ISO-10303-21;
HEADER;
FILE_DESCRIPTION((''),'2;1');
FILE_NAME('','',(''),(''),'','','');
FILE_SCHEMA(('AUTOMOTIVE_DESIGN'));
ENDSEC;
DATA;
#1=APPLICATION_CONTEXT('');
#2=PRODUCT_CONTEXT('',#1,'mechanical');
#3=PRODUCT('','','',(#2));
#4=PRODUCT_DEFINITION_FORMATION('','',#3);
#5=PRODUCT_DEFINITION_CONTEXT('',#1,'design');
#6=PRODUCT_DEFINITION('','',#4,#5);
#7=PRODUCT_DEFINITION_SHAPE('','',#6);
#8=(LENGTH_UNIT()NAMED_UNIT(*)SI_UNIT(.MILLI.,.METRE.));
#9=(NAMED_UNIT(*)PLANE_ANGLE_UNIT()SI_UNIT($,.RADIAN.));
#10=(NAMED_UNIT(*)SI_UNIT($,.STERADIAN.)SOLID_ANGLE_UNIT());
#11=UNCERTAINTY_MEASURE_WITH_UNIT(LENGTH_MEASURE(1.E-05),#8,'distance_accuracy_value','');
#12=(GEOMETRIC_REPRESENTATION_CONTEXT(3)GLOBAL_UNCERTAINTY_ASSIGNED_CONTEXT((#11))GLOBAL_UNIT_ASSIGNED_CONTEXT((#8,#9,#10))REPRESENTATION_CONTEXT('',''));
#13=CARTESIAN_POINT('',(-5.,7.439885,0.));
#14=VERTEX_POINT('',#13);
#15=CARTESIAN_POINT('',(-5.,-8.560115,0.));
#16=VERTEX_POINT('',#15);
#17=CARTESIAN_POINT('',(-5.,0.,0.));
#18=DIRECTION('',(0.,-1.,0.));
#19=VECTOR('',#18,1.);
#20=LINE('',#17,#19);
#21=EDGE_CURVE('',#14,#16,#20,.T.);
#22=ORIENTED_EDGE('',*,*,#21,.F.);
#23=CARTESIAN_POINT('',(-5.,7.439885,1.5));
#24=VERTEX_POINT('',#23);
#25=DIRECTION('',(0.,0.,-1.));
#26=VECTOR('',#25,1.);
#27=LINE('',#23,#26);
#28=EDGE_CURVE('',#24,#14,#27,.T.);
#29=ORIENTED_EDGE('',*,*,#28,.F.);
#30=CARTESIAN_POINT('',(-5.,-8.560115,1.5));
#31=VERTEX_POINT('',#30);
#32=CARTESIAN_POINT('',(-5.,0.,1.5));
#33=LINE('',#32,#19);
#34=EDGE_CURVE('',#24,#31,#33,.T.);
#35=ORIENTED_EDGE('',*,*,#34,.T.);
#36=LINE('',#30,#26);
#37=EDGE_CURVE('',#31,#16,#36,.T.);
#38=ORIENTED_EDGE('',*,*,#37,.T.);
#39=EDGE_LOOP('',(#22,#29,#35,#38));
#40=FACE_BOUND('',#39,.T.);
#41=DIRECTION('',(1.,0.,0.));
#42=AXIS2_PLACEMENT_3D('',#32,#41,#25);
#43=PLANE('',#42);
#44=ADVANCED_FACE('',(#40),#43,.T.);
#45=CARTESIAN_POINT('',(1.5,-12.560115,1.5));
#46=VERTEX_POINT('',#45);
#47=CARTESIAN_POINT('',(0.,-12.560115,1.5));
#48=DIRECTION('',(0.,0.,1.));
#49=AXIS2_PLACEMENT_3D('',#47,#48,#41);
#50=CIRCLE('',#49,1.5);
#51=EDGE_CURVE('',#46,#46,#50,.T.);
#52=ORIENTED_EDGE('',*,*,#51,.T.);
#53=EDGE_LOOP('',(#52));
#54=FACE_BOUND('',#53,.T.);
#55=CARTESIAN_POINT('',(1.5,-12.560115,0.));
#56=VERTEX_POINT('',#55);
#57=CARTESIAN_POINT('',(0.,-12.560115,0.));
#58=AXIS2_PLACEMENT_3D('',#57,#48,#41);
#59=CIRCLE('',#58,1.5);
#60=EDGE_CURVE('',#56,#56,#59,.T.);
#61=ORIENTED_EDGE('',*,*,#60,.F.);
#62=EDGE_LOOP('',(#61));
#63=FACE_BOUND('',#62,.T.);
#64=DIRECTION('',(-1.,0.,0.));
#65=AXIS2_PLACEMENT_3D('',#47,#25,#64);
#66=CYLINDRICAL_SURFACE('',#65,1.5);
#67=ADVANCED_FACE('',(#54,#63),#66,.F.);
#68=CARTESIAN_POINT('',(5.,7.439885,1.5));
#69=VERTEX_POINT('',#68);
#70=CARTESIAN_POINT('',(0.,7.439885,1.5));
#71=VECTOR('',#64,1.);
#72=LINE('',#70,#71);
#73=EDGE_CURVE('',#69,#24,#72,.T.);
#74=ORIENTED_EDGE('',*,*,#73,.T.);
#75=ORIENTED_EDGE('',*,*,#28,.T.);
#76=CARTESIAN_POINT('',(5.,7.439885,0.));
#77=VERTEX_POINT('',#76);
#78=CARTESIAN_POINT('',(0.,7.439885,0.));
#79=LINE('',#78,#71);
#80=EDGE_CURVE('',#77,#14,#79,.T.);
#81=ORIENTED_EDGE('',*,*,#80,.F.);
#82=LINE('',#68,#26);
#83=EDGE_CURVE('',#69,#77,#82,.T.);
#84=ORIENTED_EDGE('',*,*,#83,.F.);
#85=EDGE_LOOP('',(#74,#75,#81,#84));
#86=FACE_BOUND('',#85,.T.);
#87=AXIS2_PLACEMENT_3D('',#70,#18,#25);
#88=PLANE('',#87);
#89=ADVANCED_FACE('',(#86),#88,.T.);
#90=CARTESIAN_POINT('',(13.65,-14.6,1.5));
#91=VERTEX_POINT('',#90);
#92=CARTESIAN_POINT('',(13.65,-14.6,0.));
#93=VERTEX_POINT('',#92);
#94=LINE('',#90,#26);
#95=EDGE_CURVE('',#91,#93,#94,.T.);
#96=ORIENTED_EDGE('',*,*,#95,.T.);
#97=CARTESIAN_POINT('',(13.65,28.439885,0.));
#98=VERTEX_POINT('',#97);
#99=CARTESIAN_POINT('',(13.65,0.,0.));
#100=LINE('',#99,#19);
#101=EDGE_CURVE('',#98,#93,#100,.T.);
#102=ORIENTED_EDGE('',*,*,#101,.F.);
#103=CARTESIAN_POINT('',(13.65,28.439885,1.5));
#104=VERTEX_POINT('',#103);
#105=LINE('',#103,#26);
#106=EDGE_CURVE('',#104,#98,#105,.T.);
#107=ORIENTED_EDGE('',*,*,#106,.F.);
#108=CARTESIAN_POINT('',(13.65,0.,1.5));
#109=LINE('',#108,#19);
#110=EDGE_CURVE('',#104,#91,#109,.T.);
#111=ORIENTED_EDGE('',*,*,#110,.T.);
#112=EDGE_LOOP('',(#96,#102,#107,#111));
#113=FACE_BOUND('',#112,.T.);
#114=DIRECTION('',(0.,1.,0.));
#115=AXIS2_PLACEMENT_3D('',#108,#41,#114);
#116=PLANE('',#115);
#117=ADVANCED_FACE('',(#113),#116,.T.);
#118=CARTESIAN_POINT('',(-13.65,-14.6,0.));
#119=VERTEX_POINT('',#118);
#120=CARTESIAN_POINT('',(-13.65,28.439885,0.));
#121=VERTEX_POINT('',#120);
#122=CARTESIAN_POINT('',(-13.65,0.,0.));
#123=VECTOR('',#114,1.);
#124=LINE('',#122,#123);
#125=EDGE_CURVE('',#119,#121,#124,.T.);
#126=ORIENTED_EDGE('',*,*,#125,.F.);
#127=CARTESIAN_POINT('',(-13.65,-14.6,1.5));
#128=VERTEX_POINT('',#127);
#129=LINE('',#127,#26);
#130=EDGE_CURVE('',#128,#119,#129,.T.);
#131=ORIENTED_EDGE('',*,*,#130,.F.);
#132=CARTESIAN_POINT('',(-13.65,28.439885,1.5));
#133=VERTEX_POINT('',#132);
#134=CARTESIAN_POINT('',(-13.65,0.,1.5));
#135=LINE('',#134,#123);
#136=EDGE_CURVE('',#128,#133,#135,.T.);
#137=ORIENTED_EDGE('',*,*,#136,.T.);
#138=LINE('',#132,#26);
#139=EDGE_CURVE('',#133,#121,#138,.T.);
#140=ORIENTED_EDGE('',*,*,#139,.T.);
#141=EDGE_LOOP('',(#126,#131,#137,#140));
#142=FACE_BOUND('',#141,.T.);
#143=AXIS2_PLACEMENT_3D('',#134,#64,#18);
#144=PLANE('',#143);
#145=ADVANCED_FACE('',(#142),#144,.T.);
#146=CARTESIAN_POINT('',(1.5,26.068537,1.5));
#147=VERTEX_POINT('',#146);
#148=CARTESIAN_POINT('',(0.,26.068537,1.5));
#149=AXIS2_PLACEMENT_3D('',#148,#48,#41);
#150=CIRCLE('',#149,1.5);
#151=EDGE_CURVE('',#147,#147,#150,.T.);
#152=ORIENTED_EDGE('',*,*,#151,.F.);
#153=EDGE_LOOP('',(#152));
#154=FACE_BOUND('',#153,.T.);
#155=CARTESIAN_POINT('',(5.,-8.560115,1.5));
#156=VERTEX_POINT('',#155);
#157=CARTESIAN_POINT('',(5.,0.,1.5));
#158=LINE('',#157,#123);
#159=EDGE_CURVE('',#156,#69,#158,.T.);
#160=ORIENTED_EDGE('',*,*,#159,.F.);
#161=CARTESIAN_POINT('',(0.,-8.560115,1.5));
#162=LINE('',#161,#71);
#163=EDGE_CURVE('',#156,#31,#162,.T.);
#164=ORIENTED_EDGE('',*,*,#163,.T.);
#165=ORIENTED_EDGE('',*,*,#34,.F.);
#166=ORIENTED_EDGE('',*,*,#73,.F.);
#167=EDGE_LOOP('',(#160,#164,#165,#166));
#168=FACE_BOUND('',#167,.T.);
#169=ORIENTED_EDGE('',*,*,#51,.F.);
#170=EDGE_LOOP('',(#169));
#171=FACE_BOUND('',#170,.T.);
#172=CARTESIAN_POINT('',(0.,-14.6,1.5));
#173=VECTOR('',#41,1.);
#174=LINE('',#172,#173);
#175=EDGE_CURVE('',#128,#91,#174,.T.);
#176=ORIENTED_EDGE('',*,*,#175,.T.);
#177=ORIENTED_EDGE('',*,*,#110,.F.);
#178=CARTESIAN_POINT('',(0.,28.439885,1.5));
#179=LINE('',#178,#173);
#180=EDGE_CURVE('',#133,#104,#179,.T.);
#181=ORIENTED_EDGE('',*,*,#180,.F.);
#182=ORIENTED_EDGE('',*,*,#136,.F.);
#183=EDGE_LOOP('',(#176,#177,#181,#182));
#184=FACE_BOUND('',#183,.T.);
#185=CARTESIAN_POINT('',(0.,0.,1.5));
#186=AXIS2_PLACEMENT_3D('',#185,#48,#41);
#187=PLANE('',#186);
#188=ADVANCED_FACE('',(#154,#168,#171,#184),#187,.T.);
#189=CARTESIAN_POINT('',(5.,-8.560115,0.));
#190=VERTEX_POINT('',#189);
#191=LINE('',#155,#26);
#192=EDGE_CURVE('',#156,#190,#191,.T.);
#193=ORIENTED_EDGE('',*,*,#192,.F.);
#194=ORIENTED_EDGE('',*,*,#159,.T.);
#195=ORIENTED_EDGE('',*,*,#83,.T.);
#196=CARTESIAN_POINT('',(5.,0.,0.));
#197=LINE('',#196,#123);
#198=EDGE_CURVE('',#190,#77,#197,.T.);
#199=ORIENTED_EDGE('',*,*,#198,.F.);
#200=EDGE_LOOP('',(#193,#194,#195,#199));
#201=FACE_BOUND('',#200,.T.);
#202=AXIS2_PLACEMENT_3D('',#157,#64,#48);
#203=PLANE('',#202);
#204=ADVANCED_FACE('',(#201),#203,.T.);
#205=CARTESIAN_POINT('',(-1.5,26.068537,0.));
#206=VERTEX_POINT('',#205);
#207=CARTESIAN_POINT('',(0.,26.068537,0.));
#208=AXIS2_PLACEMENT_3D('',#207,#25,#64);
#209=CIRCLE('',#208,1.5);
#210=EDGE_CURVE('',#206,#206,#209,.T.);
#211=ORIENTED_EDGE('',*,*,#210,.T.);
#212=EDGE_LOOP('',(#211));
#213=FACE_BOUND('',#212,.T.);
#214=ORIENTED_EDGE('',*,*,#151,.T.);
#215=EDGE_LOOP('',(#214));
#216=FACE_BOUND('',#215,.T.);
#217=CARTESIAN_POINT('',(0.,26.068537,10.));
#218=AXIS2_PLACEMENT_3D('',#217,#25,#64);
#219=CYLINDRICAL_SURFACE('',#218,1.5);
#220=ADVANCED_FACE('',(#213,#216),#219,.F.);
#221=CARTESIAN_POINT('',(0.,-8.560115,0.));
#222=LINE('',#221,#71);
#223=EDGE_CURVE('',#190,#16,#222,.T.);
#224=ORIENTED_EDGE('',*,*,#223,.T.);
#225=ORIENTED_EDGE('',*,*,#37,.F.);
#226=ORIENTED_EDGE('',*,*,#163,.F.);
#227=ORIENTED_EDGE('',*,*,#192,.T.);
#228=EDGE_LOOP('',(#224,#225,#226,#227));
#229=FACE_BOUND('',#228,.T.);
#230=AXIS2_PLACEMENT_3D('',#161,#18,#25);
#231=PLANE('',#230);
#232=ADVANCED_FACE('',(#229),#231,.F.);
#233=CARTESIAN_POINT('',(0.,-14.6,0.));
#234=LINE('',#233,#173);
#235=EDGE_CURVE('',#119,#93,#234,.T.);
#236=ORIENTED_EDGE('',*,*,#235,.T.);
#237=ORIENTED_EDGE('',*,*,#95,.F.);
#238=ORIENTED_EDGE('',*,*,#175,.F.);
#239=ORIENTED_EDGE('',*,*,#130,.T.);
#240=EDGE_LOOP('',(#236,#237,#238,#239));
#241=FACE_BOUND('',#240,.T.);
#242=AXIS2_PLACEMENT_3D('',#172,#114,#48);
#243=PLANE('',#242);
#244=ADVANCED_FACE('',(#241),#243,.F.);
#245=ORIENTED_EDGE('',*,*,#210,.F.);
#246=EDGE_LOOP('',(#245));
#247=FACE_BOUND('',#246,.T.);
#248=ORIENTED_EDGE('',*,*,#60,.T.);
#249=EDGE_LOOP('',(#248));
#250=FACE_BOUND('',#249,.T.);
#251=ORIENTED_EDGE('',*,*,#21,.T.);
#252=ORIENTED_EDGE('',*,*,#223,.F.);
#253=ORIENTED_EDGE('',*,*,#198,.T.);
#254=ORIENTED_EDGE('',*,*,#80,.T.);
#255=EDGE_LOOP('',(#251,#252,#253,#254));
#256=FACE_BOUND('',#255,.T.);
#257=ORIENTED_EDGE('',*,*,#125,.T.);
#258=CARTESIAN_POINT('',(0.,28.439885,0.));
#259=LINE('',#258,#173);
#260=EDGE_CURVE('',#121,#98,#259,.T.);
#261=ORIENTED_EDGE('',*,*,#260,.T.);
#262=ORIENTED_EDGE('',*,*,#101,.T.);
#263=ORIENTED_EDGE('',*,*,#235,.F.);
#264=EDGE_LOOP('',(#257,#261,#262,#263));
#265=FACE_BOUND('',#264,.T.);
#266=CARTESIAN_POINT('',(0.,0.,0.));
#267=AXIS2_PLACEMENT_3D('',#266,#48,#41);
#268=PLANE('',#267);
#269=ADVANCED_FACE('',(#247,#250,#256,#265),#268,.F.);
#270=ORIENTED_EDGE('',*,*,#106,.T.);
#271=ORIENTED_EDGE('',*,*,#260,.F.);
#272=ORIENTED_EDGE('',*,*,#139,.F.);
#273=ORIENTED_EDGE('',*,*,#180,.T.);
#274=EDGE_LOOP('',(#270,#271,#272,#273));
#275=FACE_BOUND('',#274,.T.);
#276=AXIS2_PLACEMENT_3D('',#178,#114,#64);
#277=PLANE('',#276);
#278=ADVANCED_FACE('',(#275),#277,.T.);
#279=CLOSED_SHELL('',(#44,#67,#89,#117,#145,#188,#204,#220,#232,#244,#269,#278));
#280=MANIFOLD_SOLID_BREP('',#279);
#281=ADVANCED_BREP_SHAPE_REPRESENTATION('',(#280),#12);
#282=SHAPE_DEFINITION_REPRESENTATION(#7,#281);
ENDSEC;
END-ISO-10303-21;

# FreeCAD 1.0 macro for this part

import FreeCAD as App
import Part
import Sketcher


def add_polygon(sketch, points):
    """Adds a closed chain of lines whose ends are joined by coincident constraints."""
    first, n = sketch.GeometryCount, len(points)
    for a, b in zip(points, points[1:] + points[:1]):
        sketch.addGeometry(Part.LineSegment(App.Vector(*a, 0), App.Vector(*b, 0)), False)
    for i in range(n):
        sketch.addConstraint(Sketcher.Constraint("Coincident", first + i, 2, first + (i + 1) % n, 1))

doc = App.newDocument("Part")
body = doc.addObject("PartDesign::Body", "Body")

sketch1 = doc.addObject("Sketcher::SketchObject", "Sketch")
body.addObject(sketch1)
sketch1.AttachmentSupport = (doc.XY_Plane, [""])
sketch1.MapMode = "FlatFace"
add_polygon(sketch1, [(-13.7, 28.4), (-13.7, -14.6), (13.7, -14.6), (13.7, 28.4)])
sketch1.addGeometry(Part.Circle(App.Vector(0, -12.6, 0), App.Vector(0, 0, 1), 1.5), False)
add_polygon(sketch1, [(5, -8.6), (-5, -8.6), (-5, 7.4), (5, 7.4)])
sketch1.addConstraint([
    Sketcher.Constraint("Vertical", 0),
    Sketcher.Constraint("Horizontal", 1),
    Sketcher.Constraint("Vertical", 2),
    Sketcher.Constraint("Horizontal", 3),
    Sketcher.Constraint("Horizontal", 5),
    Sketcher.Constraint("Vertical", 6),
    Sketcher.Constraint("Horizontal", 7),
    Sketcher.Constraint("Vertical", 8),
    Sketcher.Constraint("PointOnObject", 4, 3, -2),
    Sketcher.Constraint("Diameter", 4, 3.0),
    Sketcher.Constraint("DistanceX", 5, 2, 5, 1, 10.0),
    Sketcher.Constraint("DistanceY", 6, 1, 6, 2, 16.0),
    Sketcher.Constraint("DistanceX", 1, 1, 1, 2, 27.3),
    Sketcher.Constraint("DistanceX", 5, 2, -1, 1, 5.0),
    Sketcher.Constraint("DistanceY", 4, 3, 2, 2, 41.0),
    Sketcher.Constraint("DistanceY", 4, 3, 5, 2, 4.0),
    Sketcher.Constraint("DistanceY", 0, 2, -1, 1, 14.6),
    Sketcher.Constraint("DistanceX", 0, 2, -1, 1, 13.65),
    Sketcher.Constraint("DistanceY", 0, 2, 0, 1, 43.039885),
])
pad1 = doc.addObject("PartDesign::Pad", "Pad")
body.addObject(pad1)
pad1.Profile = sketch1
pad1.Length = 1.5

sketch2 = doc.addObject("Sketcher::SketchObject", "Sketch001")
body.addObject(sketch2)
sketch2.AttachmentSupport = (doc.XY_Plane, [""])
sketch2.MapMode = "FlatFace"
sketch2.addGeometry(Part.Circle(App.Vector(0, 26.1, 0), App.Vector(0, 0, 1), 1.5), False)
sketch2.addConstraint([
    Sketcher.Constraint("PointOnObject", 0, 3, -2),
    Sketcher.Constraint("Diameter", 0, 3.0),
    Sketcher.Constraint("DistanceY", -1, 1, 0, 3, 26.068537),
])
pocket1 = doc.addObject("PartDesign::Pocket", "Pocket")
body.addObject(pocket1)
pocket1.Profile = sketch2
pocket1.Length = 10
pocket1.Reversed = True

doc.recompute()
